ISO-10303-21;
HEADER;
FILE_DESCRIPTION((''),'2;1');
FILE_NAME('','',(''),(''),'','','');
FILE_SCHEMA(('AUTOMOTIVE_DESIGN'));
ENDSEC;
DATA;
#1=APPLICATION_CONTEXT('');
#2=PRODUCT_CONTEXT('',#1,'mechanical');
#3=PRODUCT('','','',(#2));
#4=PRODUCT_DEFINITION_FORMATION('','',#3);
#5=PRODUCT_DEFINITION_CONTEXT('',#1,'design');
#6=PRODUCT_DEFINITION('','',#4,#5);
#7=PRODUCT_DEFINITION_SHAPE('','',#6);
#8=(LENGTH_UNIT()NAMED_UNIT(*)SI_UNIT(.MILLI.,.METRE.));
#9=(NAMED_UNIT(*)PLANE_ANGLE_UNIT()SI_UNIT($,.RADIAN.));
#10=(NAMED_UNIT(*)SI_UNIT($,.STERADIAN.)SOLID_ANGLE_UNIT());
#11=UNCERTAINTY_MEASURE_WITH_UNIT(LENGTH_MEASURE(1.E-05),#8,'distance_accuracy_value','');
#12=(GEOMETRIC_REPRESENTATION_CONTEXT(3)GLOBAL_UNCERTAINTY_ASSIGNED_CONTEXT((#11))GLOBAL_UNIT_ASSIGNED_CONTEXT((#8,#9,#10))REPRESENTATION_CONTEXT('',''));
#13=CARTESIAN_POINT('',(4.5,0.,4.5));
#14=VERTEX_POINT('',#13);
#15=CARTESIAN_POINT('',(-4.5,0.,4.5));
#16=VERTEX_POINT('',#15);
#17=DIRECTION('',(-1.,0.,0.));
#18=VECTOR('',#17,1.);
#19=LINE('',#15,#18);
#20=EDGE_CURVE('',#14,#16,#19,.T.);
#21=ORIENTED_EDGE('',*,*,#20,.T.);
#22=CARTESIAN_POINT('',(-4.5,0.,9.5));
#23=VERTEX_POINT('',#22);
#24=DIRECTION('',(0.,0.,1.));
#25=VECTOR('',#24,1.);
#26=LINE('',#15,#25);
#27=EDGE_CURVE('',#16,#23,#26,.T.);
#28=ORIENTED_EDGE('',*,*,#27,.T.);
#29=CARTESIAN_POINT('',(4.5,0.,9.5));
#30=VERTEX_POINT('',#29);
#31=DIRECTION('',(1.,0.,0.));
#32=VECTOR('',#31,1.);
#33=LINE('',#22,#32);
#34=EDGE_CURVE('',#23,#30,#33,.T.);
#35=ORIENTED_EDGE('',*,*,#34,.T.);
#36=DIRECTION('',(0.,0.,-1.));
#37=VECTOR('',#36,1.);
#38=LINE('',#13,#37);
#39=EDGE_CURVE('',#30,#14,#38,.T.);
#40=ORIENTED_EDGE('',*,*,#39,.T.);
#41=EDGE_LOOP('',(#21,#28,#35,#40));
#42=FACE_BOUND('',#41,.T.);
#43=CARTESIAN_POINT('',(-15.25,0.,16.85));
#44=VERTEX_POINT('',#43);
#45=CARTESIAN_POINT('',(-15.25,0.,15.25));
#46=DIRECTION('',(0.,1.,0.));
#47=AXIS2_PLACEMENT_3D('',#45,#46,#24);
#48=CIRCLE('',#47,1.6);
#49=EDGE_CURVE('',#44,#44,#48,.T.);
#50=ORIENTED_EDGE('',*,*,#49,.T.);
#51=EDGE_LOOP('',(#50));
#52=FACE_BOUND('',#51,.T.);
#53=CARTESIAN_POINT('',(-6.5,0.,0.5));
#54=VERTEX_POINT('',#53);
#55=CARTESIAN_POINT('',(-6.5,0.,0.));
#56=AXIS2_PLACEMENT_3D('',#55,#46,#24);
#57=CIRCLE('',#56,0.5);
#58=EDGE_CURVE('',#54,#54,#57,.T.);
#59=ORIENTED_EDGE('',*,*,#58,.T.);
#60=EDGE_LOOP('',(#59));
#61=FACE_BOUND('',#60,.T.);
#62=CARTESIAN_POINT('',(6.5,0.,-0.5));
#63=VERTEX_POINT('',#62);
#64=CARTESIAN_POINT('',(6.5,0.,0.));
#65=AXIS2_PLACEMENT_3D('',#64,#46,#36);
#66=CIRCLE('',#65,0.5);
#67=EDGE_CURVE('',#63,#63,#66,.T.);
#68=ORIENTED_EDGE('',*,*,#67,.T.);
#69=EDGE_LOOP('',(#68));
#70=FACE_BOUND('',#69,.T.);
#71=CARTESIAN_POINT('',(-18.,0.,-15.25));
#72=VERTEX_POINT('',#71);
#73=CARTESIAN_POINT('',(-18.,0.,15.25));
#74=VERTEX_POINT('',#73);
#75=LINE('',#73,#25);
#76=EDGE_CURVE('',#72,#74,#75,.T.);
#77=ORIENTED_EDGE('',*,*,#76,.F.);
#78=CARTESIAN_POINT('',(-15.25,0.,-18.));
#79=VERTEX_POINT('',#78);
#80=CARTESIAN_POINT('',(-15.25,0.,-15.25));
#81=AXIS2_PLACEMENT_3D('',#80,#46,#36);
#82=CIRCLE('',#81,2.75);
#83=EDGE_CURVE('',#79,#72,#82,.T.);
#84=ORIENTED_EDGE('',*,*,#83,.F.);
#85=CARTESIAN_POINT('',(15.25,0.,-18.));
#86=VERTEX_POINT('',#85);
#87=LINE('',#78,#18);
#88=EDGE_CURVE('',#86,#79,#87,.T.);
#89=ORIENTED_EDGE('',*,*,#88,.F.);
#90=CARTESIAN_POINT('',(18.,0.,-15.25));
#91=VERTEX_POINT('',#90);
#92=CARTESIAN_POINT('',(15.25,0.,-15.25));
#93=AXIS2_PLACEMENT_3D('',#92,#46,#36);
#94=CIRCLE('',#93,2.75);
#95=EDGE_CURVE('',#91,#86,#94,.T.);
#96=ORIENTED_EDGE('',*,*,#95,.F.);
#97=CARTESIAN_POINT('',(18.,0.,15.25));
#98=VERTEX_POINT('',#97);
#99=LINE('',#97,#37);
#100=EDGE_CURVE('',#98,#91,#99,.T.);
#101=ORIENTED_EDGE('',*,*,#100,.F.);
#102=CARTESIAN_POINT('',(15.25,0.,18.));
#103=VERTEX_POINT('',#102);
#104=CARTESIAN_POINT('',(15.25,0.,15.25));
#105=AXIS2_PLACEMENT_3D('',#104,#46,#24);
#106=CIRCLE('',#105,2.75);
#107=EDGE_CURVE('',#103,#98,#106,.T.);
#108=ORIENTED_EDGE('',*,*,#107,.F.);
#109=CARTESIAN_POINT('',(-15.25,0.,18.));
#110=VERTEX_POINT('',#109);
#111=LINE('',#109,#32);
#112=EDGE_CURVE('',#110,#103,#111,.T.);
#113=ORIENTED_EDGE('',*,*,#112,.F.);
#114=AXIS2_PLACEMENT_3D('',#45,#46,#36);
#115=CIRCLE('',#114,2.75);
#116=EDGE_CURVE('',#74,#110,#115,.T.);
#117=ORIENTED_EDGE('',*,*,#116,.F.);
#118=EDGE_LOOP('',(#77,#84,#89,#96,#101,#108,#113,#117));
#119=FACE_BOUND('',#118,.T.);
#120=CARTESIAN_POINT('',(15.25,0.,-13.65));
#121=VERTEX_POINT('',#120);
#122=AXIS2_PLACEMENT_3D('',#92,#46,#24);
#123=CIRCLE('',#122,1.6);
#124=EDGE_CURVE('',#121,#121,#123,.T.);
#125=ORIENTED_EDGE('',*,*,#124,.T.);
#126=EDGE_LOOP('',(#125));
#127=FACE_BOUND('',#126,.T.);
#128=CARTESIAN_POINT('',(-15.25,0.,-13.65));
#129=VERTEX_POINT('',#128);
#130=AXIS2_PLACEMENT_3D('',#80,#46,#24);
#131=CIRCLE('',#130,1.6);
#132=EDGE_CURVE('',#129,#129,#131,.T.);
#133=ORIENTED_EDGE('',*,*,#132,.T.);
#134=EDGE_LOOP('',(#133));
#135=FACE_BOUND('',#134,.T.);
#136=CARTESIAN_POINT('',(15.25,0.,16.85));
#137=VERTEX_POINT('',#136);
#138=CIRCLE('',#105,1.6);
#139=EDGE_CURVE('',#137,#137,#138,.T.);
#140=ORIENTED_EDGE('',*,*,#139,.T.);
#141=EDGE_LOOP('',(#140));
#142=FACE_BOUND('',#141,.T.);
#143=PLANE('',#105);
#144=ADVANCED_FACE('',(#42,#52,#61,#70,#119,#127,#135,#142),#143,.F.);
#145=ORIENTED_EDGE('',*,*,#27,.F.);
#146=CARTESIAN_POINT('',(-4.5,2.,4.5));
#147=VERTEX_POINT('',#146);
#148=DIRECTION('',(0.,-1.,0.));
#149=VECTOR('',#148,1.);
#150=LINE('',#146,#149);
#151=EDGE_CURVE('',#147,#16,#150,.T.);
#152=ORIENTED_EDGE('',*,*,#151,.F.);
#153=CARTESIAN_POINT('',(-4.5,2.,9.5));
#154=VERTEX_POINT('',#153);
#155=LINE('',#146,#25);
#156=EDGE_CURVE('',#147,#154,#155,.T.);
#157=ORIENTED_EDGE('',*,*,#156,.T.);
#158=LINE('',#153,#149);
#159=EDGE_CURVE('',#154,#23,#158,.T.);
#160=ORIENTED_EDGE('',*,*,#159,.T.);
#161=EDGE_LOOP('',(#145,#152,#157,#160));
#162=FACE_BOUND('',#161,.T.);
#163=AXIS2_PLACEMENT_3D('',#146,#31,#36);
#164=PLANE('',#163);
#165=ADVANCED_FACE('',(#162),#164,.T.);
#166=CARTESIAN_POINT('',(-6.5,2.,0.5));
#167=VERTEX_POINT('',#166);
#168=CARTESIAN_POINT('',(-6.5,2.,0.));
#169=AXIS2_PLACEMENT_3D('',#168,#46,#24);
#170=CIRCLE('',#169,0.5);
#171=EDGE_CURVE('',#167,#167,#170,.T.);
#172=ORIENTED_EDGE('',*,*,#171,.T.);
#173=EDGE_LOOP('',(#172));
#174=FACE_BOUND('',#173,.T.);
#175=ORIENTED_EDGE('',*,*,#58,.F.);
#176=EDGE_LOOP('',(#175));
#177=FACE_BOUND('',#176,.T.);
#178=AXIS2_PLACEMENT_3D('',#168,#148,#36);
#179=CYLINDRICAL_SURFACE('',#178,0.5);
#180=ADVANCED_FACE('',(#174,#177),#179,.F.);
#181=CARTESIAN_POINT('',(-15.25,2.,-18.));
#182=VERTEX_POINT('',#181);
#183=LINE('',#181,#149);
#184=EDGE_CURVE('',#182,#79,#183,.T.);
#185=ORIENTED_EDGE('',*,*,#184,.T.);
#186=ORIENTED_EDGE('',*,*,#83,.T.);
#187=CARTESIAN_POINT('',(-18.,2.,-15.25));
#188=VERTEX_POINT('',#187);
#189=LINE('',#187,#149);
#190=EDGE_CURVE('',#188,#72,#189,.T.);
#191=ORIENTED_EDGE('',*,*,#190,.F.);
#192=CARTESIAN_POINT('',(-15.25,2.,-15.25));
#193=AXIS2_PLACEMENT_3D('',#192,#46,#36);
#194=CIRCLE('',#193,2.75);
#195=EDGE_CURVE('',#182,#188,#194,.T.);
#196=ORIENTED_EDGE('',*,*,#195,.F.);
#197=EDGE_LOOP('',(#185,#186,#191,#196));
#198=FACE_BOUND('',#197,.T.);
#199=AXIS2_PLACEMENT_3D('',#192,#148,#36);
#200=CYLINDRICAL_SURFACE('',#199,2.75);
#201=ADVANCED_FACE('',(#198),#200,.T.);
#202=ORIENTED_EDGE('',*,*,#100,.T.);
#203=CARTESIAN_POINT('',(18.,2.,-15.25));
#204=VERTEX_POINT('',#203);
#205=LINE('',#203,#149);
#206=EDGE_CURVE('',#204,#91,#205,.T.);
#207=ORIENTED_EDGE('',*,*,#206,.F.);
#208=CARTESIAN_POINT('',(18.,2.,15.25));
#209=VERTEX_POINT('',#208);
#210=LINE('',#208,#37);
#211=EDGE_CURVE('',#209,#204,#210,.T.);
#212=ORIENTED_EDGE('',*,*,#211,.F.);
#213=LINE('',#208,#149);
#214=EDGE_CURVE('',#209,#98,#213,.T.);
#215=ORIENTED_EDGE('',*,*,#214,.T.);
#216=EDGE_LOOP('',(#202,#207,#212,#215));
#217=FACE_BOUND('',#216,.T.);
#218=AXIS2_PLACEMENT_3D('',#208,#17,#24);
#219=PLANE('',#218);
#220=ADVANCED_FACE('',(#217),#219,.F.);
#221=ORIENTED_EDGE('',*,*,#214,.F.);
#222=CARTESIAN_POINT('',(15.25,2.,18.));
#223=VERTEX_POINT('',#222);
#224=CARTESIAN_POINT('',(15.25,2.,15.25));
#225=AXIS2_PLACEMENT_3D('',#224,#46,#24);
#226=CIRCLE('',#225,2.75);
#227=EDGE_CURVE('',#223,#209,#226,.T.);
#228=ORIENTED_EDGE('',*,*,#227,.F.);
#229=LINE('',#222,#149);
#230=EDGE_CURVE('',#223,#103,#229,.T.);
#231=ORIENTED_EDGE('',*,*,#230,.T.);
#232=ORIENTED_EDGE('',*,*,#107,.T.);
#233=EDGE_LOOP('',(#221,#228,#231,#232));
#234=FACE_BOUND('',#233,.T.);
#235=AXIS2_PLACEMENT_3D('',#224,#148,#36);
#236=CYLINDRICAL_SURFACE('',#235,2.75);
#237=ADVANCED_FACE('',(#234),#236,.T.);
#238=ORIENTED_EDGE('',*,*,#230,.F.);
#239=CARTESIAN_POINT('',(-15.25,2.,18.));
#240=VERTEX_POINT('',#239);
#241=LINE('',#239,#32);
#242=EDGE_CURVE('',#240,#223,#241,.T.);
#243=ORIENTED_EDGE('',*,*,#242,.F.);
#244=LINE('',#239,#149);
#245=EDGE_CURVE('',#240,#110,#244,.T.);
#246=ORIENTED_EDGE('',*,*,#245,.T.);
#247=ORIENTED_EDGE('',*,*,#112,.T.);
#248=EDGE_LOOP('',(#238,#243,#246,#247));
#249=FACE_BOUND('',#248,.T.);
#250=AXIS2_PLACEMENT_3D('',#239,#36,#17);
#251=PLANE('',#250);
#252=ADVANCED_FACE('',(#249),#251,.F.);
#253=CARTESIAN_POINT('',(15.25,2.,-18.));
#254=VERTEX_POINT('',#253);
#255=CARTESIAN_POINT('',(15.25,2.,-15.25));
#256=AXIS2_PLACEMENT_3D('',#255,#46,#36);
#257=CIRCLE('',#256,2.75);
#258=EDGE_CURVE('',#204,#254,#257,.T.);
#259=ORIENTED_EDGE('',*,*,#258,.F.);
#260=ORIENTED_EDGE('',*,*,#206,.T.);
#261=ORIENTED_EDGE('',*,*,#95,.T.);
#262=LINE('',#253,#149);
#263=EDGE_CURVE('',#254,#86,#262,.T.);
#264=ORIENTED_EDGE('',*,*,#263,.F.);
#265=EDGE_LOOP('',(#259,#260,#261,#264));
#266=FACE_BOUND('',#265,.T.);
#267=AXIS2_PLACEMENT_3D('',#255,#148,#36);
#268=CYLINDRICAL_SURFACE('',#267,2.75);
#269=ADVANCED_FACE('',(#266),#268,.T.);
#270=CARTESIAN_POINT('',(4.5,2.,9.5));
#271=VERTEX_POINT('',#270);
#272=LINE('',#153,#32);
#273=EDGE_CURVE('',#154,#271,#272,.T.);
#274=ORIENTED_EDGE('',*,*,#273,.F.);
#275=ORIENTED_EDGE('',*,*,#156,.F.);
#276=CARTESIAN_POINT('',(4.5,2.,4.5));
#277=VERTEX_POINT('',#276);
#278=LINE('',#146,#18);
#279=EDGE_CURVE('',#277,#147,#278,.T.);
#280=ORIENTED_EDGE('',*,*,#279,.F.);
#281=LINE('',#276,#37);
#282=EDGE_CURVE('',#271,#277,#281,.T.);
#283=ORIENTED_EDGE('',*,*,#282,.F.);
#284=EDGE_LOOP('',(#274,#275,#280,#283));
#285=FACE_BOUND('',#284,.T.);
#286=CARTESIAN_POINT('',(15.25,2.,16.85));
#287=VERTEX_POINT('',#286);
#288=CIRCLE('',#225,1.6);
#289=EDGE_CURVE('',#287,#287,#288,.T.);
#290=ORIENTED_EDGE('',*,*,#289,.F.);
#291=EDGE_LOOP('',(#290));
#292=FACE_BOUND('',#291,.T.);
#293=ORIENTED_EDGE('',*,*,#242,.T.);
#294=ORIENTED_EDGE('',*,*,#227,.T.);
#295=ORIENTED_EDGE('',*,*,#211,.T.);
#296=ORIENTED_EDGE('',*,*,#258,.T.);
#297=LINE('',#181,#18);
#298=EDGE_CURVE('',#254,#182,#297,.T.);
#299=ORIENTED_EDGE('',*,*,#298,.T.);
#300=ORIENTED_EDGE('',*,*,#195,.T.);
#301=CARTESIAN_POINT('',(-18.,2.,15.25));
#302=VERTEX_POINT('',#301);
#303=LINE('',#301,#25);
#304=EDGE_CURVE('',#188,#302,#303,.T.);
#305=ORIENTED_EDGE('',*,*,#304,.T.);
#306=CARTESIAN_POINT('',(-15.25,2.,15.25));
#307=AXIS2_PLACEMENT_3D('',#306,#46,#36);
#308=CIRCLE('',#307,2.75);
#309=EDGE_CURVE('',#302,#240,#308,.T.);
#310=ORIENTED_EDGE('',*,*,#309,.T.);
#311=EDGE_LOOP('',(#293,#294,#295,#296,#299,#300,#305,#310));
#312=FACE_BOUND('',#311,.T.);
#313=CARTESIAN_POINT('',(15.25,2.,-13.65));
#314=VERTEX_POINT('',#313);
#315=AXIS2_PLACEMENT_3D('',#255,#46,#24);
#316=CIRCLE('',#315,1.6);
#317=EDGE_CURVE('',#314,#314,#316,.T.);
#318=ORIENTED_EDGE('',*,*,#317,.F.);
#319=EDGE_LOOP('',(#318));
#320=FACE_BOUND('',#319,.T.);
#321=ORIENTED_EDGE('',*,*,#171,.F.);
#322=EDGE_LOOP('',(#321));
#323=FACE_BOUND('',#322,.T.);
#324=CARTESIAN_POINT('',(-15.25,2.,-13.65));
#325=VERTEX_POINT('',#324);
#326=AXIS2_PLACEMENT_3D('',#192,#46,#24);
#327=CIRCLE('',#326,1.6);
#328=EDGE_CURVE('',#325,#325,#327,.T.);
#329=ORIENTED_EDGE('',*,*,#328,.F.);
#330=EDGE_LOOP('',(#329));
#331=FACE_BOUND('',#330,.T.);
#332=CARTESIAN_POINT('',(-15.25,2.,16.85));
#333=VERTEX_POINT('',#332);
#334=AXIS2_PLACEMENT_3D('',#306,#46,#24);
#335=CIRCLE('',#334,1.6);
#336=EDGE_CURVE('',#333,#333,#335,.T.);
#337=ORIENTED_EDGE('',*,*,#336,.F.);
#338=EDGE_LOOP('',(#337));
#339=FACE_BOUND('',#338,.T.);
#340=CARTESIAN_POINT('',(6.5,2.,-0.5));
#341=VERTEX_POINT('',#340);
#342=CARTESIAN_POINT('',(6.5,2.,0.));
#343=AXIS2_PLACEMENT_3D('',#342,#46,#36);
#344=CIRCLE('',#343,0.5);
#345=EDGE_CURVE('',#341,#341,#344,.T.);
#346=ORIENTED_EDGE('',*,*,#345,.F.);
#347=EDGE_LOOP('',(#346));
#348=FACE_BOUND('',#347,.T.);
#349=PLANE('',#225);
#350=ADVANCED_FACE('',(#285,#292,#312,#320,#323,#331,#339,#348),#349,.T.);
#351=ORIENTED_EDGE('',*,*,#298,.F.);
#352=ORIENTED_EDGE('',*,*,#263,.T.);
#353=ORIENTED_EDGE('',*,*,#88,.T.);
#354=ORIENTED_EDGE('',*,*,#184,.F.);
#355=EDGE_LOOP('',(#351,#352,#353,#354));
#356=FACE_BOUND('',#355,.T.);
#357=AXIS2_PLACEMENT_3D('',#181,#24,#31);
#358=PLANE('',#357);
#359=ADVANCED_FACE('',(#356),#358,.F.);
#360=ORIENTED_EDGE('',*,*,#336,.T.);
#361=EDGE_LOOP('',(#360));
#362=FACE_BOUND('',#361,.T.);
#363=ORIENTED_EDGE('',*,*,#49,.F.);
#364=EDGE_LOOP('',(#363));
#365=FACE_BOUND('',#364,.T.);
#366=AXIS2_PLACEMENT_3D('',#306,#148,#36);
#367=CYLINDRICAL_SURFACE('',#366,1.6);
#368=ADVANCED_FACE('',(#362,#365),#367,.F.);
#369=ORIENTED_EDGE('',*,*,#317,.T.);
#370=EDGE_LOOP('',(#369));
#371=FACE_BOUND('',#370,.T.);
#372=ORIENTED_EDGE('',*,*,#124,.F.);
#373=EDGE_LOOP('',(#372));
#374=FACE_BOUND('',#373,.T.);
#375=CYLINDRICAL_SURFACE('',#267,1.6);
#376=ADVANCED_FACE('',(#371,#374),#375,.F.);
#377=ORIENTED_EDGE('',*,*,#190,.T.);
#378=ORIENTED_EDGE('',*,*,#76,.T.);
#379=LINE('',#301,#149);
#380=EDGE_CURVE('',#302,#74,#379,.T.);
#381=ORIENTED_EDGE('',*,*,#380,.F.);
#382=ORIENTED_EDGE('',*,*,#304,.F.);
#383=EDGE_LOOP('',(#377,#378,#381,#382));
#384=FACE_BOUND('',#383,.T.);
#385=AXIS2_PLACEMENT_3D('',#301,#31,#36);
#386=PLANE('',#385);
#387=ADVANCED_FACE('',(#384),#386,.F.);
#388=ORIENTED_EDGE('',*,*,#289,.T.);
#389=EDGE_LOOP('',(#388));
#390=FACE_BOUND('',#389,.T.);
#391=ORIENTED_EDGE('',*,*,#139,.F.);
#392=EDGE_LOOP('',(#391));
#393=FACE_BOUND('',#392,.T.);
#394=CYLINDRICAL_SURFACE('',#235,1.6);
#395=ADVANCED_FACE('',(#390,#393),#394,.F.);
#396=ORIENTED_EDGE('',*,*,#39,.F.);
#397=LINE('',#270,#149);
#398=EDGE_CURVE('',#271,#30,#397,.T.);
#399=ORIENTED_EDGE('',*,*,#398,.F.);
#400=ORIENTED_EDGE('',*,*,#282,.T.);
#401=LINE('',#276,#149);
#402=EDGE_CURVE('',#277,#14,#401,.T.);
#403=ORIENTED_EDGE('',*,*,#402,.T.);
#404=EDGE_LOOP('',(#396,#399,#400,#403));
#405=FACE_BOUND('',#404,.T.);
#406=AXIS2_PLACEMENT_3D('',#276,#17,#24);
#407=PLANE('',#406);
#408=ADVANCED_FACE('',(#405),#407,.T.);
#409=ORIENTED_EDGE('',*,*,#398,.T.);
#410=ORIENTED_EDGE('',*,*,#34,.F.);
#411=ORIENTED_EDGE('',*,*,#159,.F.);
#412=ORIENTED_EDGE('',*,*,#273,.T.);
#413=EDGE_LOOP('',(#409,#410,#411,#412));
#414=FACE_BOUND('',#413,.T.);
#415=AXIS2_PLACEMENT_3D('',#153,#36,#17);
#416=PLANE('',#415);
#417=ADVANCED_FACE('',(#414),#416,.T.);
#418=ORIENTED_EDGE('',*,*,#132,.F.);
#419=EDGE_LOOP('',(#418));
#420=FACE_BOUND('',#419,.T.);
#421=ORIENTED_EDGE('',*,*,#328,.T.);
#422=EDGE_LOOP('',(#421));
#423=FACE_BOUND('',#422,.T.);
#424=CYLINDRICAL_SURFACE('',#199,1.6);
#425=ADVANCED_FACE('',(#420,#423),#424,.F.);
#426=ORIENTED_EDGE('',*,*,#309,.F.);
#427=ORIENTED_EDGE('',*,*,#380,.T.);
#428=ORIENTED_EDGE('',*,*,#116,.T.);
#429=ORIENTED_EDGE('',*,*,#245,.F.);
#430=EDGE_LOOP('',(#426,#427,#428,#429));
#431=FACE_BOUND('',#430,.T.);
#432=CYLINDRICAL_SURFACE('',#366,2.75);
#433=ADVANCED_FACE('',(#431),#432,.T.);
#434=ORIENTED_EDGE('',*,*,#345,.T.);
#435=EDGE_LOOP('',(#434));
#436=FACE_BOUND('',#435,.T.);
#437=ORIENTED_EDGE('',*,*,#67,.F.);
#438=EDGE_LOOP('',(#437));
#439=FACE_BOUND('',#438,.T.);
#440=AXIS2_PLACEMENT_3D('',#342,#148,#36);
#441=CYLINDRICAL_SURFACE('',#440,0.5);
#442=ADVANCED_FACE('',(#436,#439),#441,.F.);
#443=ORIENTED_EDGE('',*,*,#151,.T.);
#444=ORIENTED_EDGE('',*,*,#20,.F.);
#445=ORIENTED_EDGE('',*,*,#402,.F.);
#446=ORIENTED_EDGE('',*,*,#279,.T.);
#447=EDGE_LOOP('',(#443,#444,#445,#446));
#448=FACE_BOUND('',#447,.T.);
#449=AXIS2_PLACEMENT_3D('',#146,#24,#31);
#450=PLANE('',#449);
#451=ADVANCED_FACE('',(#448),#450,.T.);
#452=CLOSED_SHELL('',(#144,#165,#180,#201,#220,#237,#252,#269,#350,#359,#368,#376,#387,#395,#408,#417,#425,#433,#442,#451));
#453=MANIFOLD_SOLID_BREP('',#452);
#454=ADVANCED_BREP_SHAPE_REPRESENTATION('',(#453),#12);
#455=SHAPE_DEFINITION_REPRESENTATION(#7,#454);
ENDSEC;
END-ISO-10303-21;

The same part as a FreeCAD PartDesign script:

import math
import FreeCAD as App
import Part
import Sketcher
from FreeCAD import Vector
Q = App.Units.Quantity

doc = App.newDocument("Part")
body = doc.addObject("PartDesign::Body", "Body")

# Sketch on XZ plane
sketch1 = doc.addObject("Sketcher::SketchObject", "Sketch")
body.addObject(sketch1)
sketch1.AttachmentSupport = (doc.XZ_Plane, [""])
sketch1.MapMode = "FlatFace"
sketch1.addGeometry(Part.LineSegment(Vector(-15.2, 18, 0), Vector(15.2, 18, 0)), False)
sketch1.addGeometry(Part.ArcOfCircle(Part.Circle(Vector(15.2, 15.2, 0), Vector(0, 0, 1), 2.8), math.radians(0), math.radians(90)), False)
sketch1.addGeometry(Part.LineSegment(Vector(18, 15.2, 0), Vector(18, -15.2, 0)), False)
sketch1.addGeometry(Part.ArcOfCircle(Part.Circle(Vector(15.2, -15.2, 0), Vector(0, 0, 1), 2.8), math.radians(-90), math.radians(0)), False)
sketch1.addGeometry(Part.LineSegment(Vector(15.2, -18, 0), Vector(-15.2, -18, 0)), False)
sketch1.addGeometry(Part.ArcOfCircle(Part.Circle(Vector(-15.2, -15.2, 0), Vector(0, 0, 1), 2.8), math.radians(-180), math.radians(-90)), False)
sketch1.addGeometry(Part.LineSegment(Vector(-18, -15.2, 0), Vector(-18, 15.2, 0)), False)
sketch1.addGeometry(Part.ArcOfCircle(Part.Circle(Vector(-15.2, 15.2, 0), Vector(0, 0, 1), 2.8), math.radians(90), math.radians(180)), False)
sketch1.addGeometry(Part.Circle(Vector(-15.2, 15.2, 0), Vector(0, 0, 1), 1.6), False)
sketch1.addGeometry(Part.Circle(Vector(15.2, 15.2, 0), Vector(0, 0, 1), 1.6), False)
sketch1.addGeometry(Part.LineSegment(Vector(4.5, 9.5, 0), Vector(-4.5, 9.5, 0)), False)
sketch1.addGeometry(Part.LineSegment(Vector(-4.5, 9.5, 0), Vector(-4.5, 4.5, 0)), False)
sketch1.addGeometry(Part.LineSegment(Vector(-4.5, 4.5, 0), Vector(4.5, 4.5, 0)), False)
sketch1.addGeometry(Part.LineSegment(Vector(4.5, 4.5, 0), Vector(4.5, 9.5, 0)), False)
sketch1.addGeometry(Part.Circle(Vector(-6.5, 0, 0), Vector(0, 0, 1), 0.5), False)
sketch1.addGeometry(Part.Circle(Vector(-15.2, -15.2, 0), Vector(0, 0, 1), 1.6), False)
sketch1.addGeometry(Part.Circle(Vector(6.5, 0, 0), Vector(0, 0, 1), 0.5), False)
sketch1.addGeometry(Part.Circle(Vector(15.2, -15.2, 0), Vector(0, 0, 1), 1.6), False)
sketch1.addConstraint(Sketcher.Constraint("Tangent", 0, 2, 1, 2))
sketch1.addConstraint(Sketcher.Constraint("Tangent", 1, 1, 2, 1))
sketch1.addConstraint(Sketcher.Constraint("Tangent", 2, 2, 3, 2))
sketch1.addConstraint(Sketcher.Constraint("Tangent", 3, 1, 4, 1))
sketch1.addConstraint(Sketcher.Constraint("Tangent", 4, 2, 5, 2))
sketch1.addConstraint(Sketcher.Constraint("Tangent", 5, 1, 6, 1))
sketch1.addConstraint(Sketcher.Constraint("Tangent", 6, 2, 7, 2))
sketch1.addConstraint(Sketcher.Constraint("Tangent", 7, 1, 0, 1))
sketch1.addConstraint(Sketcher.Constraint("Coincident", 10, 2, 11, 1))
sketch1.addConstraint(Sketcher.Constraint("Coincident", 11, 2, 12, 1))
sketch1.addConstraint(Sketcher.Constraint("Coincident", 12, 2, 13, 1))
sketch1.addConstraint(Sketcher.Constraint("Coincident", 13, 2, 10, 1))
sketch1.addConstraint(Sketcher.Constraint("Horizontal", 0))
sketch1.addConstraint(Sketcher.Constraint("Vertical", 2))
sketch1.addConstraint(Sketcher.Constraint("Horizontal", 4))
sketch1.addConstraint(Sketcher.Constraint("Vertical", 6))
sketch1.addConstraint(Sketcher.Constraint("Horizontal", 10))
sketch1.addConstraint(Sketcher.Constraint("Vertical", 11))
sketch1.addConstraint(Sketcher.Constraint("Horizontal", 12))
sketch1.addConstraint(Sketcher.Constraint("Vertical", 13))
sketch1.addConstraint(Sketcher.Constraint("Coincident", 8, 3, 7, 3))
sketch1.addConstraint(Sketcher.Constraint("Coincident", 9, 3, 1, 3))
sketch1.addConstraint(Sketcher.Constraint("Coincident", 15, 3, 5, 3))
sketch1.addConstraint(Sketcher.Constraint("Coincident", 17, 3, 3, 3))
sketch1.addConstraint(Sketcher.Constraint("Equal", 1, 3))
sketch1.addConstraint(Sketcher.Constraint("Equal", 3, 5))
sketch1.addConstraint(Sketcher.Constraint("Equal", 5, 7))
sketch1.addConstraint(Sketcher.Constraint("Equal", 8, 9))
sketch1.addConstraint(Sketcher.Constraint("Equal", 9, 15))
sketch1.addConstraint(Sketcher.Constraint("Equal", 14, 16))
sketch1.addConstraint(Sketcher.Constraint("Equal", 15, 17))
sketch1.addConstraint(Sketcher.Constraint("Symmetric", 1, 3, 5, 3, -1, 1))
sketch1.addConstraint(Sketcher.Constraint("Symmetric", 14, 3, 16, 3, -1, 1))
sketch1.addConstraint(Sketcher.Constraint("PointOnObject", 14, 3, -1))
sketch1.addConstraint(Sketcher.Constraint("Equal", 4, 2))
sketch1.addConstraint(Sketcher.Constraint("Diameter", 14, Q("1 mm")))
sketch1.addConstraint(Sketcher.Constraint("Diameter", 8, Q("3.2 mm")))
sketch1.addConstraint(Sketcher.Constraint("DistanceX", 10, 2, 10, 1, Q("9 mm")))
sketch1.addConstraint(Sketcher.Constraint("DistanceY", 11, 2, 11, 1, Q("5 mm")))
sketch1.addConstraint(Sketcher.Constraint("Radius", 1, Q("2.75 mm")))
sketch1.addConstraint(Sketcher.Constraint("DistanceX", 0, 1, 0, 2, Q("30.5 mm")))
sketch1.addConstraint(Sketcher.Constraint("DistanceX", 14, 3, 16, 3, Q("13 mm")))
sketch1.addConstraint(Sketcher.Constraint("DistanceX", 14, 3, 10, 2, Q("2 mm")))
sketch1.addConstraint(Sketcher.Constraint("DistanceY", -1, 1, 10, 2, Q("9.5 mm")))
pad1 = doc.addObject("PartDesign::Pad", "Pad")
body.addObject(pad1)
pad1.Profile = sketch1
pad1.Length = 2
pad1.Reversed = True

doc.recompute()
